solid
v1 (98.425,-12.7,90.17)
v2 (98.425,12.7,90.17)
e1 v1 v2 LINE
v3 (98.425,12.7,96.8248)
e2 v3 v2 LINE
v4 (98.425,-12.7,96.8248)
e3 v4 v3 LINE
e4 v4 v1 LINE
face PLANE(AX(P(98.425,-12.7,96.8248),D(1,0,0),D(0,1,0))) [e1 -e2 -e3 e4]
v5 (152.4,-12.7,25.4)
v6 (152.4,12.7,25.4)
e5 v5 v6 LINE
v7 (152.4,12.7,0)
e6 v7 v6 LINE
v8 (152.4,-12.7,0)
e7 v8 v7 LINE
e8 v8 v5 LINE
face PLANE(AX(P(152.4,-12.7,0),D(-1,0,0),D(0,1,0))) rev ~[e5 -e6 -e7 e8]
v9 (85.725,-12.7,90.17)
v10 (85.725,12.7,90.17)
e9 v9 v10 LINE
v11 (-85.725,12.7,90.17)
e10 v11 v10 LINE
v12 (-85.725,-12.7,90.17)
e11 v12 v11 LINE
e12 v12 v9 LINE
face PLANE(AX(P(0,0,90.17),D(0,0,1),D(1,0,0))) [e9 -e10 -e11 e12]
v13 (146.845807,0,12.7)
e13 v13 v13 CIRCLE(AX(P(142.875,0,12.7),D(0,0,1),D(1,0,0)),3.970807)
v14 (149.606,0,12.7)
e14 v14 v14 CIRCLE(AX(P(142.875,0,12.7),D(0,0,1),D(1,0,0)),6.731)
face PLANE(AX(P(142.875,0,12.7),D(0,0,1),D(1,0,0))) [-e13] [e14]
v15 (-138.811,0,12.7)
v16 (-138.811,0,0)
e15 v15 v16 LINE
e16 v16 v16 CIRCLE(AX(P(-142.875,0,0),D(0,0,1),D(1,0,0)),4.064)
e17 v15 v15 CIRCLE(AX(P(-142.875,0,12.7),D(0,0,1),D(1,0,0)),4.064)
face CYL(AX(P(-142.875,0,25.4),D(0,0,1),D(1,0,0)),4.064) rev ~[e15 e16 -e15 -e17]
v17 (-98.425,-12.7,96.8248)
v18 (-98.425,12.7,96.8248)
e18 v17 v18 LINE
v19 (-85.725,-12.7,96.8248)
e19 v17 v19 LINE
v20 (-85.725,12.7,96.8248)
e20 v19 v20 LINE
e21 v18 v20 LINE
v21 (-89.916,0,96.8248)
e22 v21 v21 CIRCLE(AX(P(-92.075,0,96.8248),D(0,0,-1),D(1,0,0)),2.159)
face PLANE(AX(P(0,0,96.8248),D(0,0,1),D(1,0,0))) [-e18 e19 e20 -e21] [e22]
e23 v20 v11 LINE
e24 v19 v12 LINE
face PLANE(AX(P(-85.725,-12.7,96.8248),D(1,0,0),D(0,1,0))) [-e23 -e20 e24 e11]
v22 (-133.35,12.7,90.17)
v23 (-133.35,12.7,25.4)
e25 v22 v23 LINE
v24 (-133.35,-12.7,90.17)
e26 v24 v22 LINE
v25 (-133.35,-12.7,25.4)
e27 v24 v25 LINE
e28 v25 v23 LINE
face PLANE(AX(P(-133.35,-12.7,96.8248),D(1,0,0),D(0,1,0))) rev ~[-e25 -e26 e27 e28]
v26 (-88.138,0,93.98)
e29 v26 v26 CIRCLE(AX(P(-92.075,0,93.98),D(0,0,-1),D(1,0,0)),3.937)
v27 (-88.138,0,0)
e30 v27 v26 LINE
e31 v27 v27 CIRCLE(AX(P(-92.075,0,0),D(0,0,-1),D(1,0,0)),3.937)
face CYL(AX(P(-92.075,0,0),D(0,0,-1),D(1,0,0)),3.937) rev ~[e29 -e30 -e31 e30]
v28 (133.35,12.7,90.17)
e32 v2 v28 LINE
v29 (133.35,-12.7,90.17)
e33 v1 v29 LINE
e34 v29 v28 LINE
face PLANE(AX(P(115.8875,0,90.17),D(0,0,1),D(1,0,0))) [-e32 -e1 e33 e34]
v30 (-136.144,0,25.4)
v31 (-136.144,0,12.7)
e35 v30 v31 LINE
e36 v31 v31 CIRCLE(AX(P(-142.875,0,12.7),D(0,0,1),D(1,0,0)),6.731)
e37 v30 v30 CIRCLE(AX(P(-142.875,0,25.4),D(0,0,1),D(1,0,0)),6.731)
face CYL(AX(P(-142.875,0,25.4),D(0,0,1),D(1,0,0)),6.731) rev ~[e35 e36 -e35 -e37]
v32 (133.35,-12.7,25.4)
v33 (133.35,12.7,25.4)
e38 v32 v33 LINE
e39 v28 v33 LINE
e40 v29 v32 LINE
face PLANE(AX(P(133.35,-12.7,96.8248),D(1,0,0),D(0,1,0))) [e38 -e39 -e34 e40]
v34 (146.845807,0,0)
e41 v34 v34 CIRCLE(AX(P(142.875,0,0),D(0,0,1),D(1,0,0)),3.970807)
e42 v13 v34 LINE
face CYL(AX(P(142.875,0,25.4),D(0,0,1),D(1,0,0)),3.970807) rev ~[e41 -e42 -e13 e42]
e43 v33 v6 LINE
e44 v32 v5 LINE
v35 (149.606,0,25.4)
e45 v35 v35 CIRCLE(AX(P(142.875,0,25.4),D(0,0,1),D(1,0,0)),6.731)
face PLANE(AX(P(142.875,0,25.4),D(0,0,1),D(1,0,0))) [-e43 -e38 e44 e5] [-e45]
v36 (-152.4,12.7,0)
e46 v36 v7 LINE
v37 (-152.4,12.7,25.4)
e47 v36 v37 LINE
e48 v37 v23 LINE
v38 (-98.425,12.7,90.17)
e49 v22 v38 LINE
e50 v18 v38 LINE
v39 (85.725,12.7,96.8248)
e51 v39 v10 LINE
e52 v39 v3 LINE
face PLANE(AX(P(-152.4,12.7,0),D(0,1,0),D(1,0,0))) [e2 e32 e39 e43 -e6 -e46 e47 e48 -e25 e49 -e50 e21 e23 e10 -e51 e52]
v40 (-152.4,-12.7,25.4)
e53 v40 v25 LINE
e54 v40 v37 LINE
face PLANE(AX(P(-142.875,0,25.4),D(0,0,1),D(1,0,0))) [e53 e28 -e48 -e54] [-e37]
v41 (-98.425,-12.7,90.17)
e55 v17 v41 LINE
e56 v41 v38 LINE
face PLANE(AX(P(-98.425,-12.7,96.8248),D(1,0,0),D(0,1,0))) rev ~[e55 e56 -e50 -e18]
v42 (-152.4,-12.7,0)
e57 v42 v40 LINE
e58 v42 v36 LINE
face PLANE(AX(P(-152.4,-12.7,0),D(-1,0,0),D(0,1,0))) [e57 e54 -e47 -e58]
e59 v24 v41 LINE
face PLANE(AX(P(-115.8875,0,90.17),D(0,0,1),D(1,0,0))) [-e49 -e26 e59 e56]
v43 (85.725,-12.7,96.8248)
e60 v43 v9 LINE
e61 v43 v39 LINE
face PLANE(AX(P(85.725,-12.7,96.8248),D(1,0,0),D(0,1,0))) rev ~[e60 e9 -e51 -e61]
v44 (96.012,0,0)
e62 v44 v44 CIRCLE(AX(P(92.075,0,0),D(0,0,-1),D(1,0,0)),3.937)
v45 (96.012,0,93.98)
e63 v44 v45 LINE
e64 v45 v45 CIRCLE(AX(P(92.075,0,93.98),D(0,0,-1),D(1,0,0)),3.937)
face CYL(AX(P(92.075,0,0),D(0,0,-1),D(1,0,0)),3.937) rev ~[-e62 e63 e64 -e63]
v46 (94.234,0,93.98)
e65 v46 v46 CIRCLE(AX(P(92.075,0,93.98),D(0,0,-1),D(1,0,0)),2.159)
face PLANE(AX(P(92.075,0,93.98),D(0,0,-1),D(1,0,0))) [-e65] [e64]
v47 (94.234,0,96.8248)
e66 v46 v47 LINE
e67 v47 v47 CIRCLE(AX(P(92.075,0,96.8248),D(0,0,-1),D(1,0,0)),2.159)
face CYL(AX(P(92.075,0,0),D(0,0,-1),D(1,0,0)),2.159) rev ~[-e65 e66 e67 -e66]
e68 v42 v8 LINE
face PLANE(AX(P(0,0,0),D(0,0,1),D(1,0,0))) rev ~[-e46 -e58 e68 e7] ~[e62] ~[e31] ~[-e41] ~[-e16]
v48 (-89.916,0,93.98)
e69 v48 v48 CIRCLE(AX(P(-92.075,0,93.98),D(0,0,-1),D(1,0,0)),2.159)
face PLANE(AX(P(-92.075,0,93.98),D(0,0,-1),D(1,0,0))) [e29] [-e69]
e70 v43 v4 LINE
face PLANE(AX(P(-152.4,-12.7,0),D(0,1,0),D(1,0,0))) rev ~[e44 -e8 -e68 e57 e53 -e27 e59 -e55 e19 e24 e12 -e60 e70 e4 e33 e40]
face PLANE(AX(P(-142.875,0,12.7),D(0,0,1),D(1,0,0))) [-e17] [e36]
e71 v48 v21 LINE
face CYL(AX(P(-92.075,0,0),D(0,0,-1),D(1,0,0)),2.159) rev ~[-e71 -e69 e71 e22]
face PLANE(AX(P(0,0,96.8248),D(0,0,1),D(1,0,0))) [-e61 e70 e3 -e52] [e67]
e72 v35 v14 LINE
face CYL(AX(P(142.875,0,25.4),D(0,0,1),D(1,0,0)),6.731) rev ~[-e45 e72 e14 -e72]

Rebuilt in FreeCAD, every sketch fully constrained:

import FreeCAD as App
import Part
import Sketcher

V = App.Vector
Q = App.Units.Quantity


def add_polygon(sketch, points):
    """Adds a closed chain of lines whose ends are joined by coincident constraints."""
    first, n = sketch.GeometryCount, len(points)
    for a, b in zip(points, points[1:] + points[:1]):
        sketch.addGeometry(Part.LineSegment(App.Vector(*a, 0), App.Vector(*b, 0)), False)
    for i in range(n):
        sketch.addConstraint(Sketcher.Constraint("Coincident", first + i, 2, first + (i + 1) % n, 1))

doc = App.newDocument("Part")
body = doc.addObject("PartDesign::Body", "Body")

# Sketch on XY plane
sketch1 = doc.addObject("Sketcher::SketchObject", "Sketch")
body.addObject(sketch1)
sketch1.AttachmentSupport = (doc.XY_Plane, [""])
sketch1.MapMode = "FlatFace"
add_polygon(sketch1, [(-152.4, 12.7), (-152.4, -12.7), (152.4, -12.7), (152.4, 12.7)])  # lines 0-3
sketch1.addConstraint([
    Sketcher.Constraint("Vertical", 0),
    Sketcher.Constraint("Horizontal", 1),
    Sketcher.Constraint("Vertical", 2),
    Sketcher.Constraint("Horizontal", 3),
    Sketcher.Constraint("Symmetric", 0, 2, 2, 2, -1, 1),
    Sketcher.Constraint("DistanceX", 1, 1, 1, 2, Q("12 in")),
    Sketcher.Constraint("DistanceY", 0, 2, 0, 1, Q("1 in")),
])
pad1 = doc.addObject("PartDesign::Pad", "Pad")
body.addObject(pad1)
pad1.Profile = sketch1
pad1.Length = Q("3.812 in")

# Sketch on XY plane
sketch2 = doc.addObject("Sketcher::SketchObject", "Sketch001")
body.addObject(sketch2)
sketch2.AttachmentSupport = (doc.XY_Plane, [""])
sketch2.MapMode = "FlatFace"
sketch2.AttachmentOffset = App.Placement(V(0, 0, 3.812 * 25.4), App.Rotation())
add_polygon(sketch2, [(-152.4, 12.7), (-152.4, -12.7), (-133.35, -12.7), (-133.35, 12.7)])  # lines 0-3
add_polygon(sketch2, [(133.35, 12.7), (133.35, -12.7), (152.4, -12.7), (152.4, 12.7)])  # lines 4-7
sketch2.addConstraint([
    Sketcher.Constraint("Vertical", 0),
    Sketcher.Constraint("Horizontal", 1),
    Sketcher.Constraint("Vertical", 2),
    Sketcher.Constraint("Horizontal", 3),
    Sketcher.Constraint("Vertical", 4),
    Sketcher.Constraint("Horizontal", 5),
    Sketcher.Constraint("Vertical", 6),
    Sketcher.Constraint("Horizontal", 7),
    Sketcher.Constraint("Symmetric", 2, 2, 4, 2, -1, 1),
    Sketcher.Constraint("Symmetric", 0, 2, 6, 2, -1, 1),
    Sketcher.Constraint("Horizontal", 1, 2, 4, 2),
    Sketcher.Constraint("DistanceY", 0, 2, 0, 1, Q("1 in")),
    Sketcher.Constraint("DistanceX", 0, 2, -1, 1, Q("6 in")),
    Sketcher.Constraint("DistanceX", 1, 1, 1, 2, Q("0.75 in")),
])
pocket1 = doc.addObject("PartDesign::Pocket", "Pocket")
body.addObject(pocket1)
pocket1.Profile = sketch2
pocket1.Length = Q("2.812 in")

# Sketch on XY plane
sketch3 = doc.addObject("Sketcher::SketchObject", "Sketch002")
body.addObject(sketch3)
sketch3.AttachmentSupport = (doc.XY_Plane, [""])
sketch3.MapMode = "FlatFace"
sketch3.AttachmentOffset = App.Placement(V(0, 0, 3.812 * 25.4), App.Rotation())
add_polygon(sketch3, [(-133.35, 12.7), (-133.35, -12.7), (-98.425, -12.7), (-98.425, 12.7)])  # lines 0-3
add_polygon(sketch3, [(-85.725, 12.7), (-85.725, -12.7), (85.725, -12.7), (85.725, 12.7)])  # lines 4-7
add_polygon(sketch3, [(98.425, 12.7), (98.425, -12.7), (133.35, -12.7), (133.35, 12.7)])  # lines 8-11
sketch3.addConstraint([
    Sketcher.Constraint("Vertical", 0),
    Sketcher.Constraint("Horizontal", 1),
    Sketcher.Constraint("Vertical", 2),
    Sketcher.Constraint("Horizontal", 3),
    Sketcher.Constraint("Vertical", 4),
    Sketcher.Constraint("Horizontal", 5),
    Sketcher.Constraint("Vertical", 6),
    Sketcher.Constraint("Horizontal", 7),
    Sketcher.Constraint("Vertical", 8),
    Sketcher.Constraint("Horizontal", 9),
    Sketcher.Constraint("Vertical", 10),
    Sketcher.Constraint("Horizontal", 11),
    Sketcher.Constraint("Symmetric", 4, 2, 6, 2, -1, 1),
    Sketcher.Constraint("Symmetric", 2, 2, 8, 2, -1, 1),
    Sketcher.Constraint("Symmetric", 0, 2, 10, 2, -1, 1),
    Sketcher.Constraint("Horizontal", 1, 2, 4, 2),
    Sketcher.Constraint("Horizontal", 3, 2, 6, 2),
    Sketcher.Constraint("DistanceY", 0, 2, 0, 1, Q("1 in")),
    Sketcher.Constraint("DistanceX", 5, 1, 5, 2, Q("6.75 in")),
    Sketcher.Constraint("DistanceX", 1, 2, 4, 2, Q("0.5 in")),
    Sketcher.Constraint("DistanceX", 1, 1, 1, 2, Q("1.375 in")),
])
pocket2 = doc.addObject("PartDesign::Pocket", "Pocket001")
body.addObject(pocket2)
pocket2.Profile = sketch3
pocket2.Length = Q("0.262 in")

# Sketch on XY plane
sketch4 = doc.addObject("Sketcher::SketchObject", "Sketch003")
body.addObject(sketch4)
sketch4.AttachmentSupport = (doc.XY_Plane, [""])
sketch4.MapMode = "FlatFace"
sketch4.addGeometry([
    Part.Circle(V(-92.075, 0, 0), V(0, 0, 1), 2.159),
    Part.Circle(V(92.075, 0, 0), V(0, 0, 1), 2.159),
], False)
sketch4.addConstraint([
    Sketcher.Constraint("Equal", 0, 1),
    Sketcher.Constraint("Symmetric", 0, 3, 1, 3, -1, 1),
    Sketcher.Constraint("PointOnObject", 0, 3, -1),
    Sketcher.Constraint("Diameter", 0, Q("0.17 in")),
    Sketcher.Constraint("DistanceX", 0, 3, 1, 3, Q("7.25 in")),
])
pocket3 = doc.addObject("PartDesign::Pocket", "Pocket002")
body.addObject(pocket3)
pocket3.Profile = sketch4
pocket3.Type = "ThroughAll"
pocket3.Reversed = True

# Sketch on XY plane
sketch5 = doc.addObject("Sketcher::SketchObject", "Sketch004")
body.addObject(sketch5)
sketch5.AttachmentSupport = (doc.XY_Plane, [""])
sketch5.MapMode = "FlatFace"
sketch5.addGeometry([
    Part.Circle(V(-92.075, 0, 0), V(0, 0, 1), 3.937),
    Part.Circle(V(92.075, 0, 0), V(0, 0, 1), 3.937),
], False)
sketch5.addConstraint([
    Sketcher.Constraint("Equal", 0, 1),
    Sketcher.Constraint("Symmetric", 0, 3, 1, 3, -1, 1),
    Sketcher.Constraint("PointOnObject", 0, 3, -1),
    Sketcher.Constraint("Diameter", 0, Q("0.31 in")),
    Sketcher.Constraint("DistanceX", 0, 3, 1, 3, Q("7.25 in")),
])
pocket4 = doc.addObject("PartDesign::Pocket", "Pocket003")
body.addObject(pocket4)
pocket4.Profile = sketch5
pocket4.Length = Q("3.7 in")
pocket4.Reversed = True

# Sketch on XY plane
sketch6 = doc.addObject("Sketcher::SketchObject", "Sketch005")
body.addObject(sketch6)
sketch6.AttachmentSupport = (doc.XY_Plane, [""])
sketch6.MapMode = "FlatFace"
sketch6.AttachmentOffset = App.Placement(V(0, 0, 1 * 25.4), App.Rotation())
sketch6.addGeometry([
    Part.Circle(V(142.875, 0, 0), V(0, 0, 1), 3.970807),
    Part.Circle(V(-142.875, 0, 0), V(0, 0, 1), 4.064),
], False)
sketch6.addConstraint([
    Sketcher.Constraint("Symmetric", 0, 3, 1, 3, -1, 1),
    Sketcher.Constraint("PointOnObject", 0, 3, -1),
    Sketcher.Constraint("Diameter", 1, Q("0.32 in")),
    Sketcher.Constraint("DistanceX", 1, 3, 0, 3, Q("11.25 in")),
    Sketcher.Constraint("Diameter", 0, Q("7.941614 mm")),
])
pocket5 = doc.addObject("PartDesign::Pocket", "Pocket004")
body.addObject(pocket5)
pocket5.Profile = sketch6
pocket5.Type = "ThroughAll"

# Sketch on XY plane
sketch7 = doc.addObject("Sketcher::SketchObject", "Sketch006")
body.addObject(sketch7)
sketch7.AttachmentSupport = (doc.XY_Plane, [""])
sketch7.MapMode = "FlatFace"
sketch7.AttachmentOffset = App.Placement(V(0, 0, 1 * 25.4), App.Rotation())
sketch7.addGeometry([
    Part.Circle(V(-142.875, 0, 0), V(0, 0, 1), 6.731),
    Part.Circle(V(-142.875, 0, 0), V(0, 0, 1), 4.064),
    Part.Circle(V(142.875, 0, 0), V(0, 0, 1), 6.731),
    Part.Circle(V(142.875, 0, 0), V(0, 0, 1), 3.970807),
], False)
sketch7.addConstraint([
    Sketcher.Constraint("Coincident", 1, 3, 0, 3),
    Sketcher.Constraint("Coincident", 3, 3, 2, 3),
    Sketcher.Constraint("Equal", 0, 2),
    Sketcher.Constraint("Symmetric", 0, 3, 2, 3, -1, 1),
    Sketcher.Constraint("PointOnObject", 0, 3, -1),
    Sketcher.Constraint("Diameter", 0, Q("0.53 in")),
    Sketcher.Constraint("Diameter", 1, Q("0.32 in")),
    Sketcher.Constraint("DistanceX", 0, 3, 2, 3, Q("11.25 in")),
    Sketcher.Constraint("Diameter", 3, Q("7.941614 mm")),
])
pocket6 = doc.addObject("PartDesign::Pocket", "Pocket005")
body.addObject(pocket6)
pocket6.Profile = sketch7
pocket6.Length = Q("0.5 in")

doc.recompute()
